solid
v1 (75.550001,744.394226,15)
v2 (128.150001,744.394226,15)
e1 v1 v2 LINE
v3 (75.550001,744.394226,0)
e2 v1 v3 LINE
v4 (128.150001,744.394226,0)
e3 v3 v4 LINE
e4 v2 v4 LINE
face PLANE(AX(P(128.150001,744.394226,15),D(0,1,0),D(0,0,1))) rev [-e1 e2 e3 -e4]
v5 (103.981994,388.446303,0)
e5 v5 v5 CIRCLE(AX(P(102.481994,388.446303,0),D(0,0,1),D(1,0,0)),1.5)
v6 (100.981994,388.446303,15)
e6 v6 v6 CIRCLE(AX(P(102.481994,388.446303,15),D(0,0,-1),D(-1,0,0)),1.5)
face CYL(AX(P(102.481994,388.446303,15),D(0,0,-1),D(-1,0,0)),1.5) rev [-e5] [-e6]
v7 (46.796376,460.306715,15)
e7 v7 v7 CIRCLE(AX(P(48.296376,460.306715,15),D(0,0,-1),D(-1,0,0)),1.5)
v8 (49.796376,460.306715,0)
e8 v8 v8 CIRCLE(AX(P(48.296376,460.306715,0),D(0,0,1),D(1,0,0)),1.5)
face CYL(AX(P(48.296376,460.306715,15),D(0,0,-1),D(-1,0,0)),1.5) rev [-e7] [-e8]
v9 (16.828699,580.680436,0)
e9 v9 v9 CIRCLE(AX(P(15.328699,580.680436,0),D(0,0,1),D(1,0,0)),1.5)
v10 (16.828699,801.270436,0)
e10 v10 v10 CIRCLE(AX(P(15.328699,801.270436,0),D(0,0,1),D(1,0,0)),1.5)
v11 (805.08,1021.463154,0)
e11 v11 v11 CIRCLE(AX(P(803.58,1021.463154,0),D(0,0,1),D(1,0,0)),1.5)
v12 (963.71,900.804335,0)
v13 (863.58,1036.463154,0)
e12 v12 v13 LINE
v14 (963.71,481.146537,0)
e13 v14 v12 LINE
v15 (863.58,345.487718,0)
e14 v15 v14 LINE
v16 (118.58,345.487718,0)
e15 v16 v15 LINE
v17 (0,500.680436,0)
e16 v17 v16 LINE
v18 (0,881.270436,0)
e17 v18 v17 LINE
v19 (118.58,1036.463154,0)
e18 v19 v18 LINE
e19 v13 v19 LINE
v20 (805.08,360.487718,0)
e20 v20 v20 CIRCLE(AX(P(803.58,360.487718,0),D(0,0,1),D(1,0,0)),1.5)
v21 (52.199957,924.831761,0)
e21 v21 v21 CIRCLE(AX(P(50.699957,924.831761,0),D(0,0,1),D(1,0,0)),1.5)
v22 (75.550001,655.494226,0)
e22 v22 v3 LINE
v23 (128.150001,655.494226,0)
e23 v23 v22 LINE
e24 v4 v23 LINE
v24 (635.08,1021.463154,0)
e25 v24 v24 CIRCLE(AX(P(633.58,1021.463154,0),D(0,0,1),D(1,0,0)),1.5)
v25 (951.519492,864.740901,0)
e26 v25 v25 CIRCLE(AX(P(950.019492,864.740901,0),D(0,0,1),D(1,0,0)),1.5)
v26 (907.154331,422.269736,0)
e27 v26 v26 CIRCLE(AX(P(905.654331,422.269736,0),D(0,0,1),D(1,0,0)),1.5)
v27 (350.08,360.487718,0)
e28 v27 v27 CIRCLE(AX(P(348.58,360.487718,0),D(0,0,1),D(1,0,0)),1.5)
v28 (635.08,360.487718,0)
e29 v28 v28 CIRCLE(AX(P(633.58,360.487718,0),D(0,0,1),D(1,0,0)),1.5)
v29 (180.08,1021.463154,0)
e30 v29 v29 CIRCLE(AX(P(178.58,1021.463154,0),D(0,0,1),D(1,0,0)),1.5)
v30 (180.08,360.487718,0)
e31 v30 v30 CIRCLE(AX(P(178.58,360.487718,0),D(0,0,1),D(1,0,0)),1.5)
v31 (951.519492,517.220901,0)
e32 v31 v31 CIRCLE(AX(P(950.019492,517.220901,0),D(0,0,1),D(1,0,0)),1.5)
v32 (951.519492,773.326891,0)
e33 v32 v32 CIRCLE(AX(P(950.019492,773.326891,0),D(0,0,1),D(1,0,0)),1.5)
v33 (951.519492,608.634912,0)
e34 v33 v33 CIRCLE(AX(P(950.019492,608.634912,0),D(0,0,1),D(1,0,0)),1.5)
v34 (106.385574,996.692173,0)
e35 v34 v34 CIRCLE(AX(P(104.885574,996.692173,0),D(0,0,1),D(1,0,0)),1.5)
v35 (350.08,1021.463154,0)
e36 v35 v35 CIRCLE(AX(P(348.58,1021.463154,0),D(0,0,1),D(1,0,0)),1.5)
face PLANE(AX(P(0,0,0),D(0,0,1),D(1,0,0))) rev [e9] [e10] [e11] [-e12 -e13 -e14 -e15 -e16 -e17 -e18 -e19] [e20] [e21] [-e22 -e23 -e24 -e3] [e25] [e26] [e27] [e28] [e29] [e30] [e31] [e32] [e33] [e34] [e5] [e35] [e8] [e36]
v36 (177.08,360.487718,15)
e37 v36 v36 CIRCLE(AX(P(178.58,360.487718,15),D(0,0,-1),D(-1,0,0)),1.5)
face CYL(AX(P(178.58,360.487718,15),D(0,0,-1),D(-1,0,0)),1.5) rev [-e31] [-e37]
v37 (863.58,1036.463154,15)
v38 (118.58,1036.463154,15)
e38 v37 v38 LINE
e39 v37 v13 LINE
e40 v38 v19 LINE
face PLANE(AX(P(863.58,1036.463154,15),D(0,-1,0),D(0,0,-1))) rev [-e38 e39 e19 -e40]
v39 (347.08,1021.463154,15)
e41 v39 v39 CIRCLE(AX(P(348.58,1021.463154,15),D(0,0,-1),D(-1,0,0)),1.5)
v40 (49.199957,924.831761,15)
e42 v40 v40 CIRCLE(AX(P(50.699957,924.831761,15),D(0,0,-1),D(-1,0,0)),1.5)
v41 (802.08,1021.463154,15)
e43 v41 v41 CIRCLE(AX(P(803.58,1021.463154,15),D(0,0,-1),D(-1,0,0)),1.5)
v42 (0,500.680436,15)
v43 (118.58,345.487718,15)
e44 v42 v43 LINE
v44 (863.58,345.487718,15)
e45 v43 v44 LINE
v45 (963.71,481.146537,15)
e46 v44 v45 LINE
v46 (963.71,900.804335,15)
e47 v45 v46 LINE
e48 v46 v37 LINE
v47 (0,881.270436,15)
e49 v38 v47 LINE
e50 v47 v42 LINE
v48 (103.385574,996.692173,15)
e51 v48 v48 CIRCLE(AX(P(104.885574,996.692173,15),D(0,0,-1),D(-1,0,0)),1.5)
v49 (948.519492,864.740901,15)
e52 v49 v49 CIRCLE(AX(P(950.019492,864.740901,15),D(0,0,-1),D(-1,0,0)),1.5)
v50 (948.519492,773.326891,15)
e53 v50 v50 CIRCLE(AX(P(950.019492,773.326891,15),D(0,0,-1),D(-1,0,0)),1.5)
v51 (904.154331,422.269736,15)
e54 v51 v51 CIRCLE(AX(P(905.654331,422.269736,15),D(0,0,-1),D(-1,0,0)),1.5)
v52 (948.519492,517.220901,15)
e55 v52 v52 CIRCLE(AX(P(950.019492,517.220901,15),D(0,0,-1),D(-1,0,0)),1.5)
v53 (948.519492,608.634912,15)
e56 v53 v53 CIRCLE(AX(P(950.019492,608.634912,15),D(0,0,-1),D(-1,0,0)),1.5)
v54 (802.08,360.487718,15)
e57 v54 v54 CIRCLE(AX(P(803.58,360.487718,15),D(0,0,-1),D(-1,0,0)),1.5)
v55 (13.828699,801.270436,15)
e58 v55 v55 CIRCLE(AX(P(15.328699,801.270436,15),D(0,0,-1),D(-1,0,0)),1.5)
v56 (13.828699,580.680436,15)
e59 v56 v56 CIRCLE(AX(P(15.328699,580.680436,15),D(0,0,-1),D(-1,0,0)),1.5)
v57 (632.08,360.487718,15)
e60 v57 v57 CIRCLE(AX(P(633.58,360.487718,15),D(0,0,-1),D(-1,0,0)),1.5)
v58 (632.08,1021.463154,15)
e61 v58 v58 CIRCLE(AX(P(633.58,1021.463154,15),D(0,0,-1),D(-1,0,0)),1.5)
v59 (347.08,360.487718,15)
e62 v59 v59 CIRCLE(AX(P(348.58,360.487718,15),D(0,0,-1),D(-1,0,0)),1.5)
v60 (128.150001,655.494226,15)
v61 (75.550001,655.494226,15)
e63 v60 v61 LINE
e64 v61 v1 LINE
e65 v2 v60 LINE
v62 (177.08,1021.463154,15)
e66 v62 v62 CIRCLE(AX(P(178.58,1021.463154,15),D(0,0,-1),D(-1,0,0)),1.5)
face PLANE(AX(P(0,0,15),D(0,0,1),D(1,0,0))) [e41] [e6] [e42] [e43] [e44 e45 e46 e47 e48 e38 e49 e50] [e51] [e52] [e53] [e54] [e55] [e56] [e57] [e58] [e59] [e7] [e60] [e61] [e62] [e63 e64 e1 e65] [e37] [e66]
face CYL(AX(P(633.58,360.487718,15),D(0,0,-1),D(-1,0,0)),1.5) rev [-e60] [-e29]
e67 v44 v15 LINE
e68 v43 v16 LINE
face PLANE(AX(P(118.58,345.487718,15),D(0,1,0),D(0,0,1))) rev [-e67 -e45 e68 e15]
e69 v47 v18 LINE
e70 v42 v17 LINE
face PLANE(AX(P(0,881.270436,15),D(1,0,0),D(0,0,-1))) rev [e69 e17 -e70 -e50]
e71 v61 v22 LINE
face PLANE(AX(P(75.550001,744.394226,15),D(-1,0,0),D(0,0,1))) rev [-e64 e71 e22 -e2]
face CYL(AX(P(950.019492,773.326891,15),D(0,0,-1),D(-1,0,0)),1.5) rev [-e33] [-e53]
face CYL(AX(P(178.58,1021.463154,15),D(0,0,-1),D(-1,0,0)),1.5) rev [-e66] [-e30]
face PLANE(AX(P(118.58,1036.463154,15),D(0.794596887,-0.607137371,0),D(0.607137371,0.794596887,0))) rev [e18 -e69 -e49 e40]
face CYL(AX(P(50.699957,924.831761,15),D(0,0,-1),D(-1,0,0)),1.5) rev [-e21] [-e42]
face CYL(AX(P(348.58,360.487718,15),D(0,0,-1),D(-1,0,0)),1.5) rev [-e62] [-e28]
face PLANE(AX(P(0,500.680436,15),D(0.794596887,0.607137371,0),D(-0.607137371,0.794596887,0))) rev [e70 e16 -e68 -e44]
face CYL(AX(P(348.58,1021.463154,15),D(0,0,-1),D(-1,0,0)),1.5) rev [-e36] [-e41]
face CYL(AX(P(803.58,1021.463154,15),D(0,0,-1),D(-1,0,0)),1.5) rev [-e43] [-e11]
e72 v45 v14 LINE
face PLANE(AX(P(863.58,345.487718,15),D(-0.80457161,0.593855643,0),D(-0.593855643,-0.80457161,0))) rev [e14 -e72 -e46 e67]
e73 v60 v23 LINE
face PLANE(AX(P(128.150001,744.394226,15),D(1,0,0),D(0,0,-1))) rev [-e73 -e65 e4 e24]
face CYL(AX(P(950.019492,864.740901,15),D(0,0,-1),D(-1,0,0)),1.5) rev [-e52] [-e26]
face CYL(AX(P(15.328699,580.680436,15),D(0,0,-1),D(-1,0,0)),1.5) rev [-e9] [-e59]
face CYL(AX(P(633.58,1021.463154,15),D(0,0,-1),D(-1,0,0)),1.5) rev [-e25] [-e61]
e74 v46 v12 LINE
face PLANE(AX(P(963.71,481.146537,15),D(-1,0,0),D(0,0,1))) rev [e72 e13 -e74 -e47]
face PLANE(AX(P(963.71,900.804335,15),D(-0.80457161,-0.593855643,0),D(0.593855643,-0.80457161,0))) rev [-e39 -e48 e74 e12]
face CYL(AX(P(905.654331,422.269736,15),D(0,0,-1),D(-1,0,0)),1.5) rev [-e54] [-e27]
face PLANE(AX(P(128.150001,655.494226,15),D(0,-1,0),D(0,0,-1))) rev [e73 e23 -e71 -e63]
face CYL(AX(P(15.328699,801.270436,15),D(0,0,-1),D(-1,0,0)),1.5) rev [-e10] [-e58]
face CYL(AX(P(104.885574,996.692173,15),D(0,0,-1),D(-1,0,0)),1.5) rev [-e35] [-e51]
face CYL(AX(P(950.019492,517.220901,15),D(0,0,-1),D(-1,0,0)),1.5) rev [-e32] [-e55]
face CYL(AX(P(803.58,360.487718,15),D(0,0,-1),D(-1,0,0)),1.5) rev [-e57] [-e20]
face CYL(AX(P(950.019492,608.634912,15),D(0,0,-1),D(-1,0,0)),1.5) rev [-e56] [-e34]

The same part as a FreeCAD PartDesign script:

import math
import FreeCAD as App
import Part
import Sketcher
from FreeCAD import Vector
Q = App.Units.Quantity

doc = App.newDocument("Part")
body = doc.addObject("PartDesign::Body", "Body")

sketch1 = body.newObject("Sketcher::SketchObject", "Sketch")
sketch1.AttachmentSupport = (doc.getObject("XY_Plane"), [""])
sketch1.MapMode = "FlatFace"
sketch1.addGeometry([
    Part.LineSegment(Vector(0, 500.680436, 0), Vector(118.58, 345.487718, 0)),
    Part.LineSegment(Vector(118.58, 345.487718, 0), Vector(863.58, 345.487718, 0)),
    Part.LineSegment(Vector(863.58, 345.487718, 0), Vector(963.71, 481.146537, 0)),
    Part.LineSegment(Vector(963.71, 481.146537, 0), Vector(963.71, 900.804335, 0)),
    Part.LineSegment(Vector(963.71, 900.804335, 0), Vector(863.58, 1036.463154, 0)),
    Part.LineSegment(Vector(863.58, 1036.463154, 0), Vector(118.58, 1036.463154, 0)),
    Part.LineSegment(Vector(118.58, 1036.463154, 0), Vector(0, 881.270436, 0)),
    Part.LineSegment(Vector(0, 881.270436, 0), Vector(0, 500.680436, 0)),
], False)
sketch1.addConstraint([
    Sketcher.Constraint("Coincident", 0, 2, 1, 1),
    Sketcher.Constraint("Coincident", 1, 2, 2, 1),
    Sketcher.Constraint("Coincident", 2, 2, 3, 1),
    Sketcher.Constraint("Coincident", 3, 2, 4, 1),
    Sketcher.Constraint("Coincident", 4, 2, 5, 1),
    Sketcher.Constraint("Coincident", 5, 2, 6, 1),
    Sketcher.Constraint("Coincident", 6, 2, 7, 1),
    Sketcher.Constraint("Coincident", 7, 2, 0, 1),
    Sketcher.Constraint("Horizontal", 1),
    Sketcher.Constraint("Vertical", 3),
    Sketcher.Constraint("Horizontal", 5),
    Sketcher.Constraint("Vertical", 7),
    Sketcher.Constraint("PointOnObject", 6, 2, -2),
    Sketcher.Constraint("Vertical", 1, 2, 4, 2),
    Sketcher.Constraint("Vertical", 0, 2, 5, 2),
    Sketcher.Constraint("Equal", 2, 4),
    Sketcher.Constraint("Equal", 0, 6),
    Sketcher.Constraint("DistanceX", 1, 1, 1, 2, Q("745 mm")),
    Sketcher.Constraint("DistanceY", 7, 2, 7, 1, Q("380.59 mm")),
    Sketcher.Constraint("Distance", 0, Q("195.31 mm")),
    Sketcher.Constraint("Distance", 2, Q("168.61 mm")),
    Sketcher.Constraint("DistanceX", -1, 1, 0, 2, Q("118.58 mm")),
    Sketcher.Constraint("DistanceX", -1, 1, 2, 2, Q("963.71 mm")),
    Sketcher.Constraint("DistanceY", -1, 1, 0, 2, Q("345.487718 mm")),
])
pad1 = body.newObject("PartDesign::Pad", "Pad")
pad1.Profile = sketch1
pad1.Length = 15

sketch2 = body.newObject("Sketcher::SketchObject", "Sketch001")
sketch2.AttachmentSupport = (doc.getObject("XY_Plane"), [""])
sketch2.MapMode = "FlatFace"
sketch2.addGeometry([
    Part.Circle(Vector(803.58, 1021.463154, 0), Vector(0, 0, 1), 1.5),
    Part.Circle(Vector(633.58, 1021.463154, 0), Vector(0, 0, 1), 1.5),
    Part.Circle(Vector(348.58, 1021.463154, 0), Vector(0, 0, 1), 1.5),
    Part.Circle(Vector(178.58, 1021.463154, 0), Vector(0, 0, 1), 1.5),
    Part.Circle(Vector(178.58, 360.487718, 0), Vector(0, 0, 1), 1.5),
    Part.Circle(Vector(348.58, 360.487718, 0), Vector(0, 0, 1), 1.5),
    Part.Circle(Vector(633.58, 360.487718, 0), Vector(0, 0, 1), 1.5),
    Part.Circle(Vector(803.58, 360.487718, 0), Vector(0, 0, 1), 1.5),
    Part.Circle(Vector(905.654331, 422.269736, 0), Vector(0, 0, 1), 1.5),
    Part.Circle(Vector(950.019492, 517.220901, 0), Vector(0, 0, 1), 1.5),
    Part.Circle(Vector(950.019492, 864.740901, 0), Vector(0, 0, 1), 1.5),
    Part.Circle(Vector(950.019492, 773.326891, 0), Vector(0, 0, 1), 1.5),
    Part.Circle(Vector(950.019492, 608.634912, 0), Vector(0, 0, 1), 1.5),
    Part.Circle(Vector(50.699957, 924.831761, 0), Vector(0, 0, 1), 1.5),
    Part.ArcOfCircle(Part.Circle(Vector(104.885574, 996.692173, 0), Vector(0, 0, 1), 1.5), math.radians(52.982249), math.radians(232.982249)),
    Part.ArcOfCircle(Part.Circle(Vector(104.885574, 996.692173, 0), Vector(0, 0, 1), 1.5), math.radians(-127.017751), math.radians(52.982249)),
    Part.Circle(Vector(15.328699, 801.270436, 0), Vector(0, 0, 1), 1.5),
    Part.Circle(Vector(15.328699, 580.680436, 0), Vector(0, 0, 1), 1.5),
    Part.ArcOfCircle(Part.Circle(Vector(48.296376, 460.306715, 0), Vector(0, 0, 1), 1.5), math.radians(127.017751), math.radians(307.017751)),
    Part.ArcOfCircle(Part.Circle(Vector(48.296376, 460.306715, 0), Vector(0, 0, 1), 1.5), math.radians(-52.982249), math.radians(127.017751)),
    Part.Circle(Vector(102.481994, 388.446303, 0), Vector(0, 0, 1), 1.5),
], False)
sketch2.addConstraint([
    Sketcher.Constraint("Tangent", 14, 1, 15, 2),
    Sketcher.Constraint("Coincident", 15, 1, 14, 2),
    Sketcher.Constraint("Tangent", 18, 1, 19, 2),
    Sketcher.Constraint("Coincident", 19, 1, 18, 2),
    Sketcher.Constraint("Equal", 0, 1),
    Sketcher.Constraint("Equal", 1, 2),
    Sketcher.Constraint("Equal", 2, 3),
    Sketcher.Constraint("Equal", 3, 4),
    Sketcher.Constraint("Equal", 4, 5),
    Sketcher.Constraint("Equal", 5, 6),
    Sketcher.Constraint("Equal", 6, 7),
    Sketcher.Constraint("Equal", 7, 8),
    Sketcher.Constraint("Equal", 8, 9),
    Sketcher.Constraint("Equal", 9, 10),
    Sketcher.Constraint("Equal", 10, 11),
    Sketcher.Constraint("Equal", 11, 12),
    Sketcher.Constraint("Equal", 12, 13),
    Sketcher.Constraint("Equal", 13, 14),
    Sketcher.Constraint("Equal", 15, 16),
    Sketcher.Constraint("Equal", 16, 17),
    Sketcher.Constraint("Equal", 17, 18),
    Sketcher.Constraint("Equal", 19, 20),
    Sketcher.Constraint("Horizontal", 0, 3, 1, 3),
    Sketcher.Constraint("Horizontal", 1, 3, 2, 3),
    Sketcher.Constraint("Horizontal", 2, 3, 3, 3),
    Sketcher.Constraint("Horizontal", 4, 3, 5, 3),
    Sketcher.Constraint("Horizontal", 5, 3, 6, 3),
    Sketcher.Constraint("Horizontal", 6, 3, 7, 3),
    Sketcher.Constraint("Vertical", 3, 3, 4, 3),
    Sketcher.Constraint("Vertical", 2, 3, 5, 3),
    Sketcher.Constraint("Vertical", 1, 3, 6, 3),
    Sketcher.Constraint("Vertical", 0, 3, 7, 3),
    Sketcher.Constraint("Vertical", 9, 3, 10, 3),
    Sketcher.Constraint("Vertical", 10, 3, 11, 3),
    Sketcher.Constraint("Vertical", 11, 3, 12, 3),
    Sketcher.Constraint("Vertical", 16, 3, 17, 3),
    Sketcher.Constraint("Diameter", 0, Q("3 mm")),
    Sketcher.Constraint("DistanceX", 1, 3, 0, 3, Q("170 mm")),
    Sketcher.Constraint("DistanceX", 2, 3, 1, 3, Q("285 mm")),
    Sketcher.Constraint("DistanceX", 3, 3, 2, 3, Q("170 mm")),
    Sketcher.Constraint("DistanceX", -1, 1, 0, 3, Q("803.58 mm")),
    Sketcher.Constraint("DistanceY", 9, 3, 10, 3, Q("347.52 mm")),
    Sketcher.Constraint("DistanceY", 17, 3, 16, 3, Q("220.59 mm")),
    Sketcher.Constraint("DistanceY", -1, 1, 9, 3, Q("517.220901 mm")),
    Sketcher.Constraint("DistanceX", -1, 1, 16, 3, Q("15.328699 mm")),
    Sketcher.Constraint("DistanceY", -1, 1, 15, 1, Q("995.494499 mm")),
    Sketcher.Constraint("DistanceX", -1, 1, 8, 3, Q("905.654331 mm")),
    Sketcher.Constraint("DistanceX", -1, 1, 9, 3, Q("950.019492 mm")),
    Sketcher.Constraint("DistanceY", -1, 1, 11, 3, Q("773.326891 mm")),
    Sketcher.Constraint("DistanceY", -1, 1, 13, 3, Q("924.831761 mm")),
    Sketcher.Constraint("DistanceX", -1, 1, 15, 1, Q("103.982481 mm")),
    Sketcher.Constraint("DistanceY", -1, 1, 18, 1, Q("461.504389 mm")),
    Sketcher.Constraint("DistanceX", -1, 1, 19, 1, Q("49.19947 mm")),
    Sketcher.Constraint("DistanceY", -1, 1, 19, 1, Q("459.109042 mm")),
    Sketcher.Constraint("DistanceY", 7, 3, 8, 3, Q("61.782019 mm")),
    Sketcher.Constraint("DistanceY", 9, 3, 12, 3, Q("91.414011 mm")),
    Sketcher.Constraint("DistanceY", 14, 3, 3, 3, Q("24.770981 mm")),
    Sketcher.Constraint("DistanceY", 18, 3, 17, 3, Q("120.373721 mm")),
    Sketcher.Constraint("DistanceX", 18, 3, 13, 3, Q("2.403581 mm")),
    Sketcher.Constraint("DistanceX", 13, 3, 14, 1, Q("55.088711 mm")),
    Sketcher.Constraint("DistanceX", 16, 3, 14, 1, Q("90.459969 mm")),
    Sketcher.Constraint("DistanceX", 18, 1, 20, 3, Q("55.088711 mm")),
    Sketcher.Constraint("DistanceY", 4, 3, 18, 1, Q("101.016671 mm")),
    Sketcher.Constraint("DistanceY", 20, 3, 19, 1, Q("70.662739 mm")),
    Sketcher.Constraint("DistanceY", -1, 1, 0, 3, Q("1021.463154 mm")),
])
pocket1 = body.newObject("PartDesign::Pocket", "Pocket")
pocket1.Profile = sketch2
pocket1.Type = "ThroughAll"
pocket1.Midplane = True

sketch3 = body.newObject("Sketcher::SketchObject", "Sketch002")
sketch3.AttachmentSupport = (doc.getObject("XY_Plane"), [""])
sketch3.MapMode = "FlatFace"
sketch3.addGeometry([
    Part.LineSegment(Vector(128.150001, 744.394226, 0), Vector(128.150001, 655.494226, 0)),
    Part.LineSegment(Vector(128.150001, 655.494226, 0), Vector(75.550001, 655.494226, 0)),
    Part.LineSegment(Vector(75.550001, 655.494226, 0), Vector(75.550001, 744.394226, 0)),
    Part.LineSegment(Vector(75.550001, 744.394226, 0), Vector(128.150001, 744.394226, 0)),
], False)
sketch3.addConstraint([
    Sketcher.Constraint("Coincident", 0, 2, 1, 1),
    Sketcher.Constraint("Coincident", 1, 2, 2, 1),
    Sketcher.Constraint("Coincident", 2, 2, 3, 1),
    Sketcher.Constraint("Coincident", 3, 2, 0, 1),
    Sketcher.Constraint("Vertical", 0),
    Sketcher.Constraint("Horizontal", 1),
    Sketcher.Constraint("Vertical", 2),
    Sketcher.Constraint("Horizontal", 3),
    Sketcher.Constraint("DistanceX", 1, 2, 1, 1, Q("52.6 mm")),
    Sketcher.Constraint("DistanceY", 0, 2, 0, 1, Q("88.9 mm")),
    Sketcher.Constraint("DistanceX", -1, 1, 0, 2, Q("128.150001 mm")),
    Sketcher.Constraint("DistanceY", -1, 1, 0, 2, Q("655.494226 mm")),
])
pocket2 = body.newObject("PartDesign::Pocket", "Pocket001")
pocket2.Profile = sketch3
pocket2.Type = "ThroughAll"
pocket2.Reversed = True

doc.recompute()
